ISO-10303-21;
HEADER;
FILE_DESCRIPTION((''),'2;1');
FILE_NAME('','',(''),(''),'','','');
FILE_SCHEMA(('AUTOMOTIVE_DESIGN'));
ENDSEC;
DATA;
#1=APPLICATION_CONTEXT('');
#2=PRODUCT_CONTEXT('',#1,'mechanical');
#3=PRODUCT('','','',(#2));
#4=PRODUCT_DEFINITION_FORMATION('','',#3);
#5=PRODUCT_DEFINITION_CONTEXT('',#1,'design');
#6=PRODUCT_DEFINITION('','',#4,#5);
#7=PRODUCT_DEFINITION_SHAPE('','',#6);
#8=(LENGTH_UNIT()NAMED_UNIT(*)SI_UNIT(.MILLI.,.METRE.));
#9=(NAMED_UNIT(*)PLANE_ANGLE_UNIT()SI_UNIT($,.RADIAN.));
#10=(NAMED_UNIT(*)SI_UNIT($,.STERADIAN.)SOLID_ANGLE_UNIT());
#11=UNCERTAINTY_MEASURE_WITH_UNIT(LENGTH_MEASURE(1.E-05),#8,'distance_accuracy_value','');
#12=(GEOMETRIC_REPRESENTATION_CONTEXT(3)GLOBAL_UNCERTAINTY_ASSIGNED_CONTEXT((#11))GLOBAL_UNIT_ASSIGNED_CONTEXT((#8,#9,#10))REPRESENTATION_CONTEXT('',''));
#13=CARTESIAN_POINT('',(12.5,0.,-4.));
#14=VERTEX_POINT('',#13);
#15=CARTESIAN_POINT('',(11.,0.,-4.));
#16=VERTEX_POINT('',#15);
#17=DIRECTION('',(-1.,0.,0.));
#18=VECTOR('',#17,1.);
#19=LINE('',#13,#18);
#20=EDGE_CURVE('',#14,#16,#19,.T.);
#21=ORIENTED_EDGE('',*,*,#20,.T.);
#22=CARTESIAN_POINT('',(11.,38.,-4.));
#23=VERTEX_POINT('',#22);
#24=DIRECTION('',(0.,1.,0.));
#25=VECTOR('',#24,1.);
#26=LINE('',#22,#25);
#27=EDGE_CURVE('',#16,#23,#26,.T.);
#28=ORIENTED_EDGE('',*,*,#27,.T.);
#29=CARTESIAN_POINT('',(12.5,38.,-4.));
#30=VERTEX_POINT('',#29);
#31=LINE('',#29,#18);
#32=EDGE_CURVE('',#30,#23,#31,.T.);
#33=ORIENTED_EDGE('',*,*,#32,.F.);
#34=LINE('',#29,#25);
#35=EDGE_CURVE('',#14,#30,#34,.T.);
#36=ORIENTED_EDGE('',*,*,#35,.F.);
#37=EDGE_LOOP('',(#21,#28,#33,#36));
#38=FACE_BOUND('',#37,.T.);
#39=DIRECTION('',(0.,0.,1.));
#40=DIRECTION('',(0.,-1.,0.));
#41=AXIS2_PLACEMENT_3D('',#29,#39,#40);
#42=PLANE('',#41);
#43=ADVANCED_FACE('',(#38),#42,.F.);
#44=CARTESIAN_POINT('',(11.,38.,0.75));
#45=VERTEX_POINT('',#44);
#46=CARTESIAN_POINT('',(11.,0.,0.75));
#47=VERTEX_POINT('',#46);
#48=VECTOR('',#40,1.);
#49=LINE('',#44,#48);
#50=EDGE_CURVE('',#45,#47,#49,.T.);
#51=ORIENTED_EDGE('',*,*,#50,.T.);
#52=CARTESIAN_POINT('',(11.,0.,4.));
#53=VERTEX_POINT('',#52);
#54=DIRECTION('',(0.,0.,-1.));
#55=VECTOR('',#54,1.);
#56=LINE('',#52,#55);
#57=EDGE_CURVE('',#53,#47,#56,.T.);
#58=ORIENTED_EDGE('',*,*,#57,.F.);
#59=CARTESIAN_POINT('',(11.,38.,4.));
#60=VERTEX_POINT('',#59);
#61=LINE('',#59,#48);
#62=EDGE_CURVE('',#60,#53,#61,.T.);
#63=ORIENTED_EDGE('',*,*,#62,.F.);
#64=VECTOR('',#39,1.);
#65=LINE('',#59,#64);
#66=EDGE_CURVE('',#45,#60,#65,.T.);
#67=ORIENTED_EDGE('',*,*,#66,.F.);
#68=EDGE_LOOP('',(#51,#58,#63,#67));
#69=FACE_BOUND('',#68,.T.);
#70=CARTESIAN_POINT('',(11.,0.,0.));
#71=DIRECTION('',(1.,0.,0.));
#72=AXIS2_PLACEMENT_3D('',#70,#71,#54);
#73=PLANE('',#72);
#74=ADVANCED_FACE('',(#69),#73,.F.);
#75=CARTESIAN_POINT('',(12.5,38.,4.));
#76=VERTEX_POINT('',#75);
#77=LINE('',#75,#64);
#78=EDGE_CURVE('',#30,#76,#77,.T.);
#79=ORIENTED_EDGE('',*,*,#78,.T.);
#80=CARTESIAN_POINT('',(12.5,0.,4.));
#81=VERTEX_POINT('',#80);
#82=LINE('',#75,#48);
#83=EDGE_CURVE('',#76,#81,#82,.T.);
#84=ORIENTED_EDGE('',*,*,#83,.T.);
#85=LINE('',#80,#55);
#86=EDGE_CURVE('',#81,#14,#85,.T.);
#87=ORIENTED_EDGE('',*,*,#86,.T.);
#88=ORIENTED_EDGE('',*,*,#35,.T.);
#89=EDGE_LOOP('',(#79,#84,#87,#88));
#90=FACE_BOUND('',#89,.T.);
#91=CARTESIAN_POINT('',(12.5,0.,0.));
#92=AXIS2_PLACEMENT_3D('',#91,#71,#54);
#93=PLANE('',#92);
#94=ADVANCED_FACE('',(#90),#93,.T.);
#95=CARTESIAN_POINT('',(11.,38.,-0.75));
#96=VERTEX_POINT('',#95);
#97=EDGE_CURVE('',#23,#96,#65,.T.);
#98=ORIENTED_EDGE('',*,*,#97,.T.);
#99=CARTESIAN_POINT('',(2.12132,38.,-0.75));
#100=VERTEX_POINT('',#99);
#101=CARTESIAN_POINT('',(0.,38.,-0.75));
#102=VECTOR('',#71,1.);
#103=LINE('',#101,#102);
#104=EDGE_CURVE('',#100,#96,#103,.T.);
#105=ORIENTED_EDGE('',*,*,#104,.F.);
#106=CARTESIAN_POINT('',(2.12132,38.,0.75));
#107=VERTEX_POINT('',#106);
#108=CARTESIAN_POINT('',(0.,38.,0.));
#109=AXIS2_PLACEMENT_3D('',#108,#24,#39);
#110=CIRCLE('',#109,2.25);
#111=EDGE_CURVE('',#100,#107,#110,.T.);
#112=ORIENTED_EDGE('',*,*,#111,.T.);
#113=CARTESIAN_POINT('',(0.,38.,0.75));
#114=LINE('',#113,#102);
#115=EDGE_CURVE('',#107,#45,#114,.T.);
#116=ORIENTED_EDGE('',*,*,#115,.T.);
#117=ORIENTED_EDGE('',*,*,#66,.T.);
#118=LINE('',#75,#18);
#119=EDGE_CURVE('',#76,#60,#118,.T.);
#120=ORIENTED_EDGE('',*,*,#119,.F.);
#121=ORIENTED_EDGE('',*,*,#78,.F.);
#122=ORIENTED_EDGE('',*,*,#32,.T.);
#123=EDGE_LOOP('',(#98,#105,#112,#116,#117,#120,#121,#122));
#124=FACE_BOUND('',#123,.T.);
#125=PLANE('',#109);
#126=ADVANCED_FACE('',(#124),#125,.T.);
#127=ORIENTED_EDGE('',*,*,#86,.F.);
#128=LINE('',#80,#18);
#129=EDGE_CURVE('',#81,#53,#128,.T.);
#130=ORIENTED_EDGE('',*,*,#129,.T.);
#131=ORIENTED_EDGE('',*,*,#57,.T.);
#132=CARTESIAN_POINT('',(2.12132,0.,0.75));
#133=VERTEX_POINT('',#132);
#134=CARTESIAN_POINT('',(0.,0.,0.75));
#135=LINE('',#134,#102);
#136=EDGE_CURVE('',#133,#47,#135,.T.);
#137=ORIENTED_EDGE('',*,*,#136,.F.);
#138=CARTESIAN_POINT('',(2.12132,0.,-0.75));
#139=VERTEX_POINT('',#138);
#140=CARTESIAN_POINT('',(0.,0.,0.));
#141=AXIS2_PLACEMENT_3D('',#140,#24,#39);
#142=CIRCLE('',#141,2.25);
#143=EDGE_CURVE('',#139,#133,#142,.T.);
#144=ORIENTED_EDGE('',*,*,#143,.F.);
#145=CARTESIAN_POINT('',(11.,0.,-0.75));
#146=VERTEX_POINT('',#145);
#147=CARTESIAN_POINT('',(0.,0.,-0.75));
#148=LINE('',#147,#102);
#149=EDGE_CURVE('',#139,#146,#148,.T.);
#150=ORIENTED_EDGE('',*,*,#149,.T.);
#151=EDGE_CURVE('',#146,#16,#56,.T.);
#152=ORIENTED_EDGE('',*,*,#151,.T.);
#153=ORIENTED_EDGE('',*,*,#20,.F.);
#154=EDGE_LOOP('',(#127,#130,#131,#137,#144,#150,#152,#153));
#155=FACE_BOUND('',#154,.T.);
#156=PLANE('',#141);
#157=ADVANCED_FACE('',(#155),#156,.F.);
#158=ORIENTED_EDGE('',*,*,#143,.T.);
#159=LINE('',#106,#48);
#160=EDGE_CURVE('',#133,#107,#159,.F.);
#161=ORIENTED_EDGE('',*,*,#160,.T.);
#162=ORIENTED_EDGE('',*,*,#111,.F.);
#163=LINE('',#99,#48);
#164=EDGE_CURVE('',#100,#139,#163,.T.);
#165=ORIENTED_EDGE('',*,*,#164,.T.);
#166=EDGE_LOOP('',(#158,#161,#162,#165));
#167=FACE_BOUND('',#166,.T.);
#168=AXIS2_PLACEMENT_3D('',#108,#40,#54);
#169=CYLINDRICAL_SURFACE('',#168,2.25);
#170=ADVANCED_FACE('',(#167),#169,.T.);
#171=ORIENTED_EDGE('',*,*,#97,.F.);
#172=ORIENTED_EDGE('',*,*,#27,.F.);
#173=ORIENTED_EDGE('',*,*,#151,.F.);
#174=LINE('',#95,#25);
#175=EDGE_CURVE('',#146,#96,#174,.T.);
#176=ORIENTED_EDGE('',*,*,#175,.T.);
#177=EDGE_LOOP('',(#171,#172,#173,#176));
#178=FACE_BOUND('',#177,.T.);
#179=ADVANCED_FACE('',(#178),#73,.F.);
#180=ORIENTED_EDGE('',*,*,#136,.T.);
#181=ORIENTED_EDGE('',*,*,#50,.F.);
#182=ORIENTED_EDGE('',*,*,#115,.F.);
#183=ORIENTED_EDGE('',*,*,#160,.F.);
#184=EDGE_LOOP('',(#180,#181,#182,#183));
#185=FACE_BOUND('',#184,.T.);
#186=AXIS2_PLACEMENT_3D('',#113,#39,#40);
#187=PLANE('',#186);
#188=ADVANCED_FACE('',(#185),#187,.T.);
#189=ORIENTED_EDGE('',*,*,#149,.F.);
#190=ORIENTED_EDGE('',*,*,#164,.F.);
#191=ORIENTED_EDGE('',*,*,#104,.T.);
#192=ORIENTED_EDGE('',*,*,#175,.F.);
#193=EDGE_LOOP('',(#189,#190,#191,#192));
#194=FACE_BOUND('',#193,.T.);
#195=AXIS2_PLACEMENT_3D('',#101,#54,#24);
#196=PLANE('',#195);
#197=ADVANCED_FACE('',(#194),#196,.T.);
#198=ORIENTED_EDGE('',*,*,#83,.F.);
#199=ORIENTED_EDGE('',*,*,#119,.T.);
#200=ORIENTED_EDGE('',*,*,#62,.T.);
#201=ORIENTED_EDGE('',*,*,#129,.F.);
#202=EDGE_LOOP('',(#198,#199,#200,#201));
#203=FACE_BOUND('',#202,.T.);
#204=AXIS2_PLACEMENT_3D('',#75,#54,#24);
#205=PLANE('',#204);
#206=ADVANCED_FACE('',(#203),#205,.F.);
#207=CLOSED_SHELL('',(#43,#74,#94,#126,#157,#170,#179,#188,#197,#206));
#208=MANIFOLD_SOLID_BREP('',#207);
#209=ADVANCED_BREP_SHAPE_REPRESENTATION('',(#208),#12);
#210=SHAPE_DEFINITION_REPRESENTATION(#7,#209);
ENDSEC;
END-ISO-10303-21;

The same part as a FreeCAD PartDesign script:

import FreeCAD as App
import Part
import Sketcher
Q = App.Units.Quantity


def add_polygon(sketch, points):
    """Adds a closed chain of lines whose ends are joined by coincident constraints."""
    first, n = sketch.GeometryCount, len(points)
    for a, b in zip(points, points[1:] + points[:1]):
        sketch.addGeometry(Part.LineSegment(App.Vector(*a, 0), App.Vector(*b, 0)), False)
    for i in range(n):
        sketch.addConstraint(Sketcher.Constraint("Coincident", first + i, 2, first + (i + 1) % n, 1))

doc = App.newDocument("Part")
body = doc.addObject("PartDesign::Body", "Body")

# Sketch on XZ plane
sketch1 = body.newObject("Sketcher::SketchObject", "Sketch")
sketch1.AttachmentSupport = (doc.getObject("XZ_Plane"), [""])
sketch1.MapMode = "FlatFace"
sketch1.addGeometry(Part.Circle(App.Vector(0, 0, 0), App.Vector(0, 0, 1), 2.2), False)
sketch1.addConstraint([
    Sketcher.Constraint("Coincident", 0, 3, -1, 1),
    Sketcher.Constraint("Diameter", 0, Q("4.5 mm")),
])
pad1 = body.newObject("PartDesign::Pad", "Pad")
pad1.Profile = sketch1
pad1.Length = 38
pad1.Reversed = True

# Sketch on YZ plane
sketch2 = body.newObject("Sketcher::SketchObject", "Sketch001")
sketch2.AttachmentSupport = (doc.getObject("YZ_Plane"), [""])
sketch2.MapMode = "FlatFace"
sketch2.AttachmentOffset = App.Placement(App.Vector(0, 0, 3), App.Rotation())
add_polygon(sketch2, [(38, 0.8), (0, 0.8), (0, -0.8), (38, -0.8)])  # lines 0-3
sketch2.addConstraint([
    Sketcher.Constraint("Horizontal", 0),
    Sketcher.Constraint("Vertical", 1),
    Sketcher.Constraint("Horizontal", 2),
    Sketcher.Constraint("Vertical", 3),
    Sketcher.Constraint("Symmetric", 0, 2, 1, 2, -1, 1),
    Sketcher.Constraint("DistanceX", 0, 2, 0, 1, Q("38 mm")),
    Sketcher.Constraint("DistanceY", 1, 2, 1, 1, Q("1.5 mm")),
])
pad2 = body.newObject("PartDesign::Pad", "Pad001")
pad2.Profile = sketch2
pad2.Type = "TwoLengths"
pad2.Length = 8
pad2.Length2 = 3

# Sketch on YZ plane
sketch3 = body.newObject("Sketcher::SketchObject", "Sketch002")
sketch3.AttachmentSupport = (doc.getObject("YZ_Plane"), [""])
sketch3.MapMode = "FlatFace"
sketch3.AttachmentOffset = App.Placement(App.Vector(0, 0, 11), App.Rotation())
add_polygon(sketch3, [(38, 4), (0, 4), (0, -4), (38, -4)])  # lines 0-3
sketch3.addConstraint([
    Sketcher.Constraint("Horizontal", 0),
    Sketcher.Constraint("Vertical", 1),
    Sketcher.Constraint("Horizontal", 2),
    Sketcher.Constraint("Vertical", 3),
    Sketcher.Constraint("Symmetric", 0, 2, 1, 2, -1, 1),
    Sketcher.Constraint("DistanceX", 0, 2, 0, 1, Q("38 mm")),
    Sketcher.Constraint("DistanceY", 1, 2, 1, 1, Q("8 mm")),
])
pad3 = body.newObject("PartDesign::Pad", "Pad002")
pad3.Profile = sketch3
pad3.Length = 1.5

doc.recompute()
